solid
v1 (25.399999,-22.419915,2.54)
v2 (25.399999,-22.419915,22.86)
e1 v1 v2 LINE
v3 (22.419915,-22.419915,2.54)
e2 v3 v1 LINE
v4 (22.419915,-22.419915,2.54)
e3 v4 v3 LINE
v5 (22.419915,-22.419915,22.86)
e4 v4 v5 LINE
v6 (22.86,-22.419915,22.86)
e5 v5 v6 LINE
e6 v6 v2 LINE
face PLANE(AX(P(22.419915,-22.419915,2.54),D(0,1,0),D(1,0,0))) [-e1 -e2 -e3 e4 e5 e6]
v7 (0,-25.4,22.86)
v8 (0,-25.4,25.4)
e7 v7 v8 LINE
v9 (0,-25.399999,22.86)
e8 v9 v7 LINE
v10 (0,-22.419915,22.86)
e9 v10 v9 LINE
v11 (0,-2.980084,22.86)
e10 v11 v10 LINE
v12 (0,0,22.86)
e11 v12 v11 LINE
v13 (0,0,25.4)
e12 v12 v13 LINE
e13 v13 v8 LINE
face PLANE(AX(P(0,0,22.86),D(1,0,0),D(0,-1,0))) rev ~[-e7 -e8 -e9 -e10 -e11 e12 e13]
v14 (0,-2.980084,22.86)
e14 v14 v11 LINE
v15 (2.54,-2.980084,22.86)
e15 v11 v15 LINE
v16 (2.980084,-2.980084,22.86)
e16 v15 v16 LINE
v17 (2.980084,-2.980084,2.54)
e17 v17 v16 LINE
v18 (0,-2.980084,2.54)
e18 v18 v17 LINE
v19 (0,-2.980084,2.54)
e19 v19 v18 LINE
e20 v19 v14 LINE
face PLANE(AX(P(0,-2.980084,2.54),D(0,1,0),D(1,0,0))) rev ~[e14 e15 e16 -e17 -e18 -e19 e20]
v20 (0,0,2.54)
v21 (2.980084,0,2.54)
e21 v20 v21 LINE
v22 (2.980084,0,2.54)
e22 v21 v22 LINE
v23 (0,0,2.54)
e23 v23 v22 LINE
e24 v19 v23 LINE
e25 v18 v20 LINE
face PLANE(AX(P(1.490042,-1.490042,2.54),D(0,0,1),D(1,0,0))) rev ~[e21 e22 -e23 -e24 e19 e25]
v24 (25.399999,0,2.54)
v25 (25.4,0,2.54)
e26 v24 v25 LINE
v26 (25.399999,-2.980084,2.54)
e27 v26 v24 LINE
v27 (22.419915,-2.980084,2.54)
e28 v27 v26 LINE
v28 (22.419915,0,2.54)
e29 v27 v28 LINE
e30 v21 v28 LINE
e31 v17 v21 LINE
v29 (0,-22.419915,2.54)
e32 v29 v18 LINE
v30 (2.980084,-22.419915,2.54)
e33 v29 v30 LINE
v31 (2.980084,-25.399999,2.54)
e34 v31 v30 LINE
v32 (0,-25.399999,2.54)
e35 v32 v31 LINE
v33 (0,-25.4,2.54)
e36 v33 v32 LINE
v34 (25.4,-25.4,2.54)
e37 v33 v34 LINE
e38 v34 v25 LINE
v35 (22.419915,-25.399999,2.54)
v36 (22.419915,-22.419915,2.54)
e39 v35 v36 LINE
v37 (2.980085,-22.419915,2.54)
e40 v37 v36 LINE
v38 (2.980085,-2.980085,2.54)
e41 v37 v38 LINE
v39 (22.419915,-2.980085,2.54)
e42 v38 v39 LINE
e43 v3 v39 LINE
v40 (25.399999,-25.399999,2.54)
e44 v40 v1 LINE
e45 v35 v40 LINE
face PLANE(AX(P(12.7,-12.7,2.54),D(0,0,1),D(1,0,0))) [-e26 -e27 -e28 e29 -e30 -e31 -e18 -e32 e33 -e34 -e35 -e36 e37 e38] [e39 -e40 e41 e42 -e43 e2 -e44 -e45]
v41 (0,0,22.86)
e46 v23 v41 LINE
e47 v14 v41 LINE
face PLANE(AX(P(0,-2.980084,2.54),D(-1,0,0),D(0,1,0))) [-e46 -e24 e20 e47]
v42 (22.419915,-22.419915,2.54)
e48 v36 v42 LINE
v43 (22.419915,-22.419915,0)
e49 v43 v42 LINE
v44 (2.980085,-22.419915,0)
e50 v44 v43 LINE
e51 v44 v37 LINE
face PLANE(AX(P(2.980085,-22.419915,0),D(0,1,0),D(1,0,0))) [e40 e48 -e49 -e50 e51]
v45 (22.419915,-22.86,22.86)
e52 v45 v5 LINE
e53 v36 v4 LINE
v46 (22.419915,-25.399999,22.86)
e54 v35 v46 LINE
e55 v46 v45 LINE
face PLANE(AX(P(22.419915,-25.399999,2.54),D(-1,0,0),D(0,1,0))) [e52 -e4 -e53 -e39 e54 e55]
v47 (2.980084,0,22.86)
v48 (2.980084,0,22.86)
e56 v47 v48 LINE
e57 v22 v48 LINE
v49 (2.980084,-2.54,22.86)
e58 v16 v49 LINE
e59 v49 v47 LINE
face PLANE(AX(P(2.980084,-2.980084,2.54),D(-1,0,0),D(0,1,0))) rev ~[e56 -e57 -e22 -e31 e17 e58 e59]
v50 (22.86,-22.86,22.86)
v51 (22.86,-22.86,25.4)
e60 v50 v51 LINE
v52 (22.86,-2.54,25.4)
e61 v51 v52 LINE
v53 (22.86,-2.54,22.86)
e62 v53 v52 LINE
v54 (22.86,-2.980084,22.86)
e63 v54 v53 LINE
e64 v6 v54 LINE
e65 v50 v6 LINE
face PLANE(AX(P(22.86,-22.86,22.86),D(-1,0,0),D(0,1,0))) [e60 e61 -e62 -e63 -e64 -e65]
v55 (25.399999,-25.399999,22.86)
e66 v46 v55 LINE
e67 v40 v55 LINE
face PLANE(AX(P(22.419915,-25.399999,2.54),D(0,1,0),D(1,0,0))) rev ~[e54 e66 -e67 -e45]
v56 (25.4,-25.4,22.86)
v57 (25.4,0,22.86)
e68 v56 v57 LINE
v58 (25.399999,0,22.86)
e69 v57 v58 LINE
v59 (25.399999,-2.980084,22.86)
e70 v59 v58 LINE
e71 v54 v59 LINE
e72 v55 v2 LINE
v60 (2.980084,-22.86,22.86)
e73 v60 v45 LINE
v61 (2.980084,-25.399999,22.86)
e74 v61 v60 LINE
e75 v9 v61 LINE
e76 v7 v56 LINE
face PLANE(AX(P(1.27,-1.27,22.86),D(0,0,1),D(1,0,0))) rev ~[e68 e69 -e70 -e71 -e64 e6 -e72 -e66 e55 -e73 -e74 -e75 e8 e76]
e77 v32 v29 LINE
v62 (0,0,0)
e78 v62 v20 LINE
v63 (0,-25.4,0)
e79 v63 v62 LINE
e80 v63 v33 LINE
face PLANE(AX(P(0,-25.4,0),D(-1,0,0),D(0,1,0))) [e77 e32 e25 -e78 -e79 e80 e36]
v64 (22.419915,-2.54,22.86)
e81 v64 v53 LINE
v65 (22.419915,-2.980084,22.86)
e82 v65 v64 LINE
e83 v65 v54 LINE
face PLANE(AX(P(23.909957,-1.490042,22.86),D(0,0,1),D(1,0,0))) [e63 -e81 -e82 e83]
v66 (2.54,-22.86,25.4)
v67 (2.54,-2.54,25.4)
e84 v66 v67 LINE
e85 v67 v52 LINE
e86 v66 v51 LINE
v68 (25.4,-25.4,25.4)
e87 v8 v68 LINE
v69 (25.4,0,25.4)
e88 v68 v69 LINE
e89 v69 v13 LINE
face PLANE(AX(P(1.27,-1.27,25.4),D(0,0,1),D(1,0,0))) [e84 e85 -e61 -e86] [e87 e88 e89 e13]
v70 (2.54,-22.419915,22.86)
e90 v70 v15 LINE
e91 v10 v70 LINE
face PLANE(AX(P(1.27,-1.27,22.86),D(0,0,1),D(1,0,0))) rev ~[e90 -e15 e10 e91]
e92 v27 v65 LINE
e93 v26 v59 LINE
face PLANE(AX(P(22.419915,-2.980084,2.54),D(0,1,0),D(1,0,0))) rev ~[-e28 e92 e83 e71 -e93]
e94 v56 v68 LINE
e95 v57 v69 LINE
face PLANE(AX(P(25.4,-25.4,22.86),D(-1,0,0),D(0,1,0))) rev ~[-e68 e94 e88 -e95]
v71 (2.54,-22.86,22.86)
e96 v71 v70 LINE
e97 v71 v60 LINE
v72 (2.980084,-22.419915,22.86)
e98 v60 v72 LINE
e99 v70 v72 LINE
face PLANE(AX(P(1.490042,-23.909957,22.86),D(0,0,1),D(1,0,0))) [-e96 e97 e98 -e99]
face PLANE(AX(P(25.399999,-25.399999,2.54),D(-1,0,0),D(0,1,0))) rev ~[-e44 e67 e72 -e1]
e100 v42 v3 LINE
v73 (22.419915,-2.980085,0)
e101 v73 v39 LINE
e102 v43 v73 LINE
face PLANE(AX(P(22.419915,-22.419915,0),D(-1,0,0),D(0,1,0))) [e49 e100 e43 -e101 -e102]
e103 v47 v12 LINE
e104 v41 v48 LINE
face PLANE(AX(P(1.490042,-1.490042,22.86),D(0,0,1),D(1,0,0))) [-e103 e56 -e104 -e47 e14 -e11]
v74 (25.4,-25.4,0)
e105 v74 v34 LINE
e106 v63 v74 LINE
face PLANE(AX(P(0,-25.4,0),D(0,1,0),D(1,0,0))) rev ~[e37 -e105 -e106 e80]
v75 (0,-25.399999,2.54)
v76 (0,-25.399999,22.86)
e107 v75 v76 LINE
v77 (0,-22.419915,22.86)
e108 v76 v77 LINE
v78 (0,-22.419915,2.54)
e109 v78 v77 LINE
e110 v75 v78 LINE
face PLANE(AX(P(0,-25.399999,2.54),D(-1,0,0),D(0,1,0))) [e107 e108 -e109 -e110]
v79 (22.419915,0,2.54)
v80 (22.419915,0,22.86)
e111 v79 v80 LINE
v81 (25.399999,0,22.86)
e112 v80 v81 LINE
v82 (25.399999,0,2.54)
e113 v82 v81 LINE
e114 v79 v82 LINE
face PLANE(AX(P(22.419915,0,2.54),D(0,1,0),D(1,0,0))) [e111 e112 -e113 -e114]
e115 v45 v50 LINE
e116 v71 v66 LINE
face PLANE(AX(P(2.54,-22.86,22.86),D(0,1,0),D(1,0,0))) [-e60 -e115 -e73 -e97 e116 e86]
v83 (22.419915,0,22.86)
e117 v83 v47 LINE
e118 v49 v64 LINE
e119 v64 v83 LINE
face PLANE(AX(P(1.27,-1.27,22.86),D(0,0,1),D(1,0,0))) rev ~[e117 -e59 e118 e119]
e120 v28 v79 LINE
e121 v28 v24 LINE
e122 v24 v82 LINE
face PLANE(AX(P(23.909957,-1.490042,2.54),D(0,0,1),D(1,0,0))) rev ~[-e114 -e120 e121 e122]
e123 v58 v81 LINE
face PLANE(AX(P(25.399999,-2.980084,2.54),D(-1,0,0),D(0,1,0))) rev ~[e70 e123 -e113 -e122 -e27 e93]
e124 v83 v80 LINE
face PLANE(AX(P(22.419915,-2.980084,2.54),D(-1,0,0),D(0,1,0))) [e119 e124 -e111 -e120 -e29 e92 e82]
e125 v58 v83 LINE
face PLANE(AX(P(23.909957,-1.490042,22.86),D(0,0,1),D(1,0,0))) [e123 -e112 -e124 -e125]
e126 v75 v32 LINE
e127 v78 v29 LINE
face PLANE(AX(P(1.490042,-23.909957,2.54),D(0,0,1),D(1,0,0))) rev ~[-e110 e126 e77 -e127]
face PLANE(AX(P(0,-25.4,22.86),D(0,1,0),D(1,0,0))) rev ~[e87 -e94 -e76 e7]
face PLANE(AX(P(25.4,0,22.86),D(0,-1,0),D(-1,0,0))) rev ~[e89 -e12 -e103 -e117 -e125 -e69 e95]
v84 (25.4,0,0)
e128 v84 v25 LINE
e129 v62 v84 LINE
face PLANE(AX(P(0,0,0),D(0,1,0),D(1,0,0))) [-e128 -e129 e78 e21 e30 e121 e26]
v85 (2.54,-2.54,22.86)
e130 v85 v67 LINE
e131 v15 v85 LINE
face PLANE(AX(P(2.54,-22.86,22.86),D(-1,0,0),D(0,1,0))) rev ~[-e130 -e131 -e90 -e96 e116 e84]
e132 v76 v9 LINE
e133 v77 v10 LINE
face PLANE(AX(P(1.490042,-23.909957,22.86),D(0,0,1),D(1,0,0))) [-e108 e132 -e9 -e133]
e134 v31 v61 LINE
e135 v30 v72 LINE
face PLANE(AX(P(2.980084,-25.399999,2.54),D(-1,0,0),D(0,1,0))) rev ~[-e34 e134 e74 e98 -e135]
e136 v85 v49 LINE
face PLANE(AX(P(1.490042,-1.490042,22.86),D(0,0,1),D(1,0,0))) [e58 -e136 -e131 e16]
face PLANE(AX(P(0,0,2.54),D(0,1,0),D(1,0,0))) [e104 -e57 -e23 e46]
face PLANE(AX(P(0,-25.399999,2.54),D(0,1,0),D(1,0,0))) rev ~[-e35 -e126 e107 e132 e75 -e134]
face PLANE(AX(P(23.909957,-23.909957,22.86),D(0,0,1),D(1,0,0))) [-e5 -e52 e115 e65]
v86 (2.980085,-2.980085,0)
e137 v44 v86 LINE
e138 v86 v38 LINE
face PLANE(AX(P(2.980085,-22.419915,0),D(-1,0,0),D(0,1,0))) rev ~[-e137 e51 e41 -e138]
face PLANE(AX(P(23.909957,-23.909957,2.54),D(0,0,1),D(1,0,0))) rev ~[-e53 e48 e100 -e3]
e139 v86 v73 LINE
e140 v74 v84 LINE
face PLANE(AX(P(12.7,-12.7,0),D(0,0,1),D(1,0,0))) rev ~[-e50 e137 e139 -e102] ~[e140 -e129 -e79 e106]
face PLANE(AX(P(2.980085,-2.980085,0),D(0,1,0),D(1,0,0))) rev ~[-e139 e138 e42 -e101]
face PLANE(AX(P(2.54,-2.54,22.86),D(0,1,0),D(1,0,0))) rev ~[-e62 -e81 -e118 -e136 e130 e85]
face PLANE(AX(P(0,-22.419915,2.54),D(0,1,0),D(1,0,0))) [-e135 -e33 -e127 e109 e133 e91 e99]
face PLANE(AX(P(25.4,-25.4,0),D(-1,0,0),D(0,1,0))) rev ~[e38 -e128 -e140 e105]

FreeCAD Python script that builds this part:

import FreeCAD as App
import Part
import Sketcher
Q = App.Units.Quantity

doc = App.newDocument("Part")
body = doc.addObject("PartDesign::Body", "Body")

# Sketch on XY plane
sketch1 = body.newObject("Sketcher::SketchObject", "Sketch")
sketch1.AttachmentSupport = (doc.getObject("XY_Plane"), [""])
sketch1.MapMode = "FlatFace"
sketch1.addGeometry(Part.LineSegment(App.Vector(0, 0, 0), App.Vector(0, -25, 0)), False)
sketch1.addGeometry(Part.LineSegment(App.Vector(0, -25, 0), App.Vector(25, -25, 0)), False)
sketch1.addGeometry(Part.LineSegment(App.Vector(25, -25, 0), App.Vector(25, 0, 0)), False)
sketch1.addGeometry(Part.LineSegment(App.Vector(25, 0, 0), App.Vector(0, 0, 0)), False)
sketch1.addGeometry(Part.LineSegment(App.Vector(22, -22, 0), App.Vector(3, -22, 0)), False)
sketch1.addGeometry(Part.LineSegment(App.Vector(3, -22, 0), App.Vector(3, -3, 0)), False)
sketch1.addGeometry(Part.LineSegment(App.Vector(3, -3, 0), App.Vector(22, -3, 0)), False)
sketch1.addGeometry(Part.LineSegment(App.Vector(22, -3, 0), App.Vector(22, -22, 0)), False)
sketch1.addConstraint(Sketcher.Constraint("Coincident", 0, 2, 1, 1))
sketch1.addConstraint(Sketcher.Constraint("Coincident", 1, 2, 2, 1))
sketch1.addConstraint(Sketcher.Constraint("Coincident", 2, 2, 3, 1))
sketch1.addConstraint(Sketcher.Constraint("Coincident", 3, 2, 0, 1))
sketch1.addConstraint(Sketcher.Constraint("Coincident", 4, 2, 5, 1))
sketch1.addConstraint(Sketcher.Constraint("Coincident", 5, 2, 6, 1))
sketch1.addConstraint(Sketcher.Constraint("Coincident", 6, 2, 7, 1))
sketch1.addConstraint(Sketcher.Constraint("Coincident", 7, 2, 4, 1))
sketch1.addConstraint(Sketcher.Constraint("Vertical", 0))
sketch1.addConstraint(Sketcher.Constraint("Horizontal", 1))
sketch1.addConstraint(Sketcher.Constraint("Vertical", 2))
sketch1.addConstraint(Sketcher.Constraint("Horizontal", 3))
sketch1.addConstraint(Sketcher.Constraint("Horizontal", 4))
sketch1.addConstraint(Sketcher.Constraint("Vertical", 5))
sketch1.addConstraint(Sketcher.Constraint("Horizontal", 6))
sketch1.addConstraint(Sketcher.Constraint("Vertical", 7))
sketch1.addConstraint(Sketcher.Constraint("Coincident", 3, 2, -1, 1))
sketch1.addConstraint(Sketcher.Constraint("Equal", 3, 0))
sketch1.addConstraint(Sketcher.Constraint("Equal", 6, 5))
sketch1.addConstraint(Sketcher.Constraint("DistanceX", 1, 1, 1, 2, Q("1 in")))
sketch1.addConstraint(Sketcher.Constraint("DistanceX", 4, 2, 4, 1, Q("19.43983 mm")))
sketch1.addConstraint(Sketcher.Constraint("DistanceX", -1, 1, 4, 2, Q("2.980085 mm")))
sketch1.addConstraint(Sketcher.Constraint("DistanceY", 4, 2, -1, 1, Q("22.419915 mm")))
pad1 = body.newObject("PartDesign::Pad", "Pad")
pad1.Profile = sketch1
pad1.Length = Q("0.1 in")

# Sketch on XY plane
sketch2 = body.newObject("Sketcher::SketchObject", "Sketch001")
sketch2.AttachmentSupport = (doc.getObject("XY_Plane"), [""])
sketch2.MapMode = "FlatFace"
sketch2.AttachmentOffset = App.Placement(App.Vector(0, 0, 0.1 * 25.4), App.Rotation())
sketch2.addGeometry(Part.LineSegment(App.Vector(0, 0, 0), App.Vector(0, -3, 0)), False)
sketch2.addGeometry(Part.LineSegment(App.Vector(0, -3, 0), App.Vector(3, -3, 0)), False)
sketch2.addGeometry(Part.LineSegment(App.Vector(3, -3, 0), App.Vector(3, 0, 0)), False)
sketch2.addGeometry(Part.LineSegment(App.Vector(3, 0, 0), App.Vector(0, 0, 0)), False)
sketch2.addGeometry(Part.LineSegment(App.Vector(22.4, 0, 0), App.Vector(22.4, -3, 0)), False)
sketch2.addGeometry(Part.LineSegment(App.Vector(22.4, -3, 0), App.Vector(25.4, -3, 0)), False)
sketch2.addGeometry(Part.LineSegment(App.Vector(25.4, -3, 0), App.Vector(25.4, 0, 0)), False)
sketch2.addGeometry(Part.LineSegment(App.Vector(25.4, 0, 0), App.Vector(22.4, 0, 0)), False)
sketch2.addGeometry(Part.LineSegment(App.Vector(22.4, -22.4, 0), App.Vector(22.4, -25.4, 0)), False)
sketch2.addGeometry(Part.LineSegment(App.Vector(22.4, -25.4, 0), App.Vector(25.4, -25.4, 0)), False)
sketch2.addGeometry(Part.LineSegment(App.Vector(25.4, -25.4, 0), App.Vector(25.4, -22.4, 0)), False)
sketch2.addGeometry(Part.LineSegment(App.Vector(25.4, -22.4, 0), App.Vector(22.4, -22.4, 0)), False)
sketch2.addGeometry(Part.LineSegment(App.Vector(0, -22.4, 0), App.Vector(0, -25.4, 0)), False)
sketch2.addGeometry(Part.LineSegment(App.Vector(0, -25.4, 0), App.Vector(3, -25.4, 0)), False)
sketch2.addGeometry(Part.LineSegment(App.Vector(3, -25.4, 0), App.Vector(3, -22.4, 0)), False)
sketch2.addGeometry(Part.LineSegment(App.Vector(3, -22.4, 0), App.Vector(0, -22.4, 0)), False)
sketch2.addConstraint(Sketcher.Constraint("Coincident", 0, 2, 1, 1))
sketch2.addConstraint(Sketcher.Constraint("Coincident", 1, 2, 2, 1))
sketch2.addConstraint(Sketcher.Constraint("Coincident", 2, 2, 3, 1))
sketch2.addConstraint(Sketcher.Constraint("Coincident", 3, 2, 0, 1))
sketch2.addConstraint(Sketcher.Constraint("Coincident", 4, 2, 5, 1))
sketch2.addConstraint(Sketcher.Constraint("Coincident", 5, 2, 6, 1))
sketch2.addConstraint(Sketcher.Constraint("Coincident", 6, 2, 7, 1))
sketch2.addConstraint(Sketcher.Constraint("Coincident", 7, 2, 4, 1))
sketch2.addConstraint(Sketcher.Constraint("Coincident", 8, 2, 9, 1))
sketch2.addConstraint(Sketcher.Constraint("Coincident", 9, 2, 10, 1))
sketch2.addConstraint(Sketcher.Constraint("Coincident", 10, 2, 11, 1))
sketch2.addConstraint(Sketcher.Constraint("Coincident", 11, 2, 8, 1))
sketch2.addConstraint(Sketcher.Constraint("Coincident", 12, 2, 13, 1))
sketch2.addConstraint(Sketcher.Constraint("Coincident", 13, 2, 14, 1))
sketch2.addConstraint(Sketcher.Constraint("Coincident", 14, 2, 15, 1))
sketch2.addConstraint(Sketcher.Constraint("Coincident", 15, 2, 12, 1))
sketch2.addConstraint(Sketcher.Constraint("Vertical", 0))
sketch2.addConstraint(Sketcher.Constraint("Horizontal", 1))
sketch2.addConstraint(Sketcher.Constraint("Vertical", 2))
sketch2.addConstraint(Sketcher.Constraint("Horizontal", 3))
sketch2.addConstraint(Sketcher.Constraint("Vertical", 4))
sketch2.addConstraint(Sketcher.Constraint("Horizontal", 5))
sketch2.addConstraint(Sketcher.Constraint("Vertical", 6))
sketch2.addConstraint(Sketcher.Constraint("Horizontal", 7))
sketch2.addConstraint(Sketcher.Constraint("Vertical", 8))
sketch2.addConstraint(Sketcher.Constraint("Horizontal", 9))
sketch2.addConstraint(Sketcher.Constraint("Vertical", 10))
sketch2.addConstraint(Sketcher.Constraint("Horizontal", 11))
sketch2.addConstraint(Sketcher.Constraint("Vertical", 12))
sketch2.addConstraint(Sketcher.Constraint("Horizontal", 13))
sketch2.addConstraint(Sketcher.Constraint("Vertical", 14))
sketch2.addConstraint(Sketcher.Constraint("Horizontal", 15))
sketch2.addConstraint(Sketcher.Constraint("Coincident", 3, 2, -1, 1))
sketch2.addConstraint(Sketcher.Constraint("PointOnObject", 6, 2, -1))
sketch2.addConstraint(Sketcher.Constraint("PointOnObject", 12, 2, -2))
sketch2.addConstraint(Sketcher.Constraint("Horizontal", 1, 2, 4, 2))
sketch2.addConstraint(Sketcher.Constraint("Horizontal", 9, 2, 12, 2))
sketch2.addConstraint(Sketcher.Constraint("Horizontal", 11, 2, 14, 2))
sketch2.addConstraint(Sketcher.Constraint("Vertical", 7, 2, 8, 2))
sketch2.addConstraint(Sketcher.Constraint("Vertical", 6, 2, 9, 2))
sketch2.addConstraint(Sketcher.Constraint("Vertical", 2, 2, 13, 2))
sketch2.addConstraint(Sketcher.Constraint("Equal", 3, 5))
sketch2.addConstraint(Sketcher.Constraint("Equal", 15, 0))
sketch2.addConstraint(Sketcher.Constraint("Equal", 6, 8))
sketch2.addConstraint(Sketcher.Constraint("DistanceX", -1, 1, 5, 2, Q("1 in")))
sketch2.addConstraint(Sketcher.Constraint("DistanceY", 8, 2, -1, 1, Q("1 in")))
sketch2.addConstraint(Sketcher.Constraint("DistanceX", 1, 1, 1, 2, Q("2.980085 mm")))
pad2 = body.newObject("PartDesign::Pad", "Pad001")
pad2.Profile = sketch2
pad2.Length = Q("0.8 in")

# Sketch on XY plane
sketch3 = body.newObject("Sketcher::SketchObject", "Sketch002")
sketch3.AttachmentSupport = (doc.getObject("XY_Plane"), [""])
sketch3.MapMode = "FlatFace"
sketch3.AttachmentOffset = App.Placement(App.Vector(0, 0, 0.9 * 25.4), App.Rotation())
sketch3.addGeometry(Part.LineSegment(App.Vector(0, -25, 0), App.Vector(25, -25, 0)), False)
sketch3.addGeometry(Part.LineSegment(App.Vector(25, -25, 0), App.Vector(25, 0, 0)), False)
sketch3.addGeometry(Part.LineSegment(App.Vector(25, 0, 0), App.Vector(0, 0, 0)), False)
sketch3.addGeometry(Part.LineSegment(App.Vector(0, 0, 0), App.Vector(0, -25, 0)), False)
sketch3.addGeometry(Part.LineSegment(App.Vector(23, -23, 0), App.Vector(3, -23, 0)), False)
sketch3.addGeometry(Part.LineSegment(App.Vector(3, -23, 0), App.Vector(3, -3, 0)), False)
sketch3.addGeometry(Part.LineSegment(App.Vector(3, -3, 0), App.Vector(23, -3, 0)), False)
sketch3.addGeometry(Part.LineSegment(App.Vector(23, -3, 0), App.Vector(23, -23, 0)), False)
sketch3.addConstraint(Sketcher.Constraint("Coincident", 0, 2, 1, 1))
sketch3.addConstraint(Sketcher.Constraint("Coincident", 1, 2, 2, 1))
sketch3.addConstraint(Sketcher.Constraint("Coincident", 2, 2, 3, 1))
sketch3.addConstraint(Sketcher.Constraint("Coincident", 3, 2, 0, 1))
sketch3.addConstraint(Sketcher.Constraint("Coincident", 4, 2, 5, 1))
sketch3.addConstraint(Sketcher.Constraint("Coincident", 5, 2, 6, 1))
sketch3.addConstraint(Sketcher.Constraint("Coincident", 6, 2, 7, 1))
sketch3.addConstraint(Sketcher.Constraint("Coincident", 7, 2, 4, 1))
sketch3.addConstraint(Sketcher.Constraint("Horizontal", 0))
sketch3.addConstraint(Sketcher.Constraint("Vertical", 1))
sketch3.addConstraint(Sketcher.Constraint("Horizontal", 2))
sketch3.addConstraint(Sketcher.Constraint("Vertical", 3))
sketch3.addConstraint(Sketcher.Constraint("Horizontal", 4))
sketch3.addConstraint(Sketcher.Constraint("Vertical", 5))
sketch3.addConstraint(Sketcher.Constraint("Horizontal", 6))
sketch3.addConstraint(Sketcher.Constraint("Vertical", 7))
sketch3.addConstraint(Sketcher.Constraint("Coincident", 2, 2, -1, 1))
sketch3.addConstraint(Sketcher.Constraint("Equal", 2, 1))
sketch3.addConstraint(Sketcher.Constraint("Equal", 6, 5))
sketch3.addConstraint(Sketcher.Constraint("DistanceX", 0, 1, 0, 2, Q("1 in")))
sketch3.addConstraint(Sketcher.Constraint("DistanceX", 4, 2, 4, 1, Q("0.8 in")))
sketch3.addConstraint(Sketcher.Constraint("DistanceX", -1, 1, 4, 2, Q("0.1 in")))
sketch3.addConstraint(Sketcher.Constraint("DistanceY", 4, 2, -1, 1, Q("0.9 in")))
pad3 = body.newObject("PartDesign::Pad", "Pad002")
pad3.Profile = sketch3
pad3.Length = Q("0.1 in")

doc.recompute()
